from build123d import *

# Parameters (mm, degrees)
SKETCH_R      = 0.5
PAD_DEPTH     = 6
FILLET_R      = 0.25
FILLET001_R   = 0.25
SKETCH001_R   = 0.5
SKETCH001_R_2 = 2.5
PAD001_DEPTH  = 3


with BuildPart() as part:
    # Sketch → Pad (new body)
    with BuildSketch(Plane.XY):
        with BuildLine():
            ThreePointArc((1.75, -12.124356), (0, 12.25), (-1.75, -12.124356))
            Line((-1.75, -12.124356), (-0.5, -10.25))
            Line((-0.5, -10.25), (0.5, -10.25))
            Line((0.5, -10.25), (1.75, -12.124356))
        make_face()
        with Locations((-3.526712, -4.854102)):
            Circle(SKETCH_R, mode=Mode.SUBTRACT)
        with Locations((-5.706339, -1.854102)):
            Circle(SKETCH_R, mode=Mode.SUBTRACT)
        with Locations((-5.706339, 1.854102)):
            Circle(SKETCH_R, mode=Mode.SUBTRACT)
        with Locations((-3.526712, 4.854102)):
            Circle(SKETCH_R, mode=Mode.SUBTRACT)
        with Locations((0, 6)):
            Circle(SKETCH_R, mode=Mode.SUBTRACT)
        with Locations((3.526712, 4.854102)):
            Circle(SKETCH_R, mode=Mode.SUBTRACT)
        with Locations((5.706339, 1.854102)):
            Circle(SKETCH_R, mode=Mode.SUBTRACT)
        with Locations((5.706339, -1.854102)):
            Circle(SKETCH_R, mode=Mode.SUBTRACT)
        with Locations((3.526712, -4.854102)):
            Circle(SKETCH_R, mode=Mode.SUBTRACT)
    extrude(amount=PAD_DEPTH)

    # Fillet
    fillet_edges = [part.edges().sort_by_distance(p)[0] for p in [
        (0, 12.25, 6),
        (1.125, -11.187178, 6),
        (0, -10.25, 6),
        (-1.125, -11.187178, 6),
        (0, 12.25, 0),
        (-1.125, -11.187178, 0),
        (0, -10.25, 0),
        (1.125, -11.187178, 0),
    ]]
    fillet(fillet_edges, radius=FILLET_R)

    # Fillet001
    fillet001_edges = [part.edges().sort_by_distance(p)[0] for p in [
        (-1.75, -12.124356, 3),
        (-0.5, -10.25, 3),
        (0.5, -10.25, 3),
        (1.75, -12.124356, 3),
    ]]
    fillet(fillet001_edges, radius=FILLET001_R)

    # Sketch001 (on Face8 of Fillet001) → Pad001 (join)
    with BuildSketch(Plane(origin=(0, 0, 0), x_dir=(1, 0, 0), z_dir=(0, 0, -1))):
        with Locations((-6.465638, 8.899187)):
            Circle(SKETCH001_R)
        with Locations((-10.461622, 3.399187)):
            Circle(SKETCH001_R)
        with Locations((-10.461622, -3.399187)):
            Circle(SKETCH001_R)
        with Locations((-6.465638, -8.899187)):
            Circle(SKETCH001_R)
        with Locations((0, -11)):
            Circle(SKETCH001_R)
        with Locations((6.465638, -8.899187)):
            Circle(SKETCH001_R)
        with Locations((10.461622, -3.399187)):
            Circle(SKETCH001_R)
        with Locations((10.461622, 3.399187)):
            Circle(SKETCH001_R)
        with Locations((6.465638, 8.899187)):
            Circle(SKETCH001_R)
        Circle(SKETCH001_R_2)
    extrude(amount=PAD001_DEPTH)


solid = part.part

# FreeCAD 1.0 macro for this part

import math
import FreeCAD as App
import Part
import Sketcher

V = App.Vector
Q = App.Units.Quantity


def edges_at(feature, points):
    """Names of the edges that pass closest to the given points."""
    edges = feature.Shape.Edges
    near = lambda p: min(range(len(edges)), key=lambda i: edges[i].distToShape(Part.Vertex(*p))[0])
    return sorted({f"Edge{near(p) + 1}" for p in points})

doc = App.newDocument("Part")
body = doc.addObject("PartDesign::Body", "Body")

# Sketch on XY plane
sketch1 = doc.addObject("Sketcher::SketchObject", "Sketch")
body.addObject(sketch1)
sketch1.AttachmentSupport = (doc.XY_Plane, [""])
sketch1.MapMode = "FlatFace"
sketch1.addGeometry([
    Part.ArcOfCircle(Part.Circle(V(0, 0, 0), V(0, 0, 1), 12.3), math.radians(-82), math.radians(262)),  # 0
    Part.LineSegment(V(-1.8, -12.1, 0), V(-0.5, -10.2, 0)),  # 1
    Part.LineSegment(V(-0.5, -10.2, 0), V(0.5, -10.2, 0)),  # 2
    Part.LineSegment(V(0.5, -10.2, 0), V(1.8, -12.1, 0)),  # 3
    Part.Circle(V(-3.5, -4.9, 0), V(0, 0, 1), 0.5),  # 4
    Part.Circle(V(-5.7, -1.9, 0), V(0, 0, 1), 0.5),  # 5
    Part.Circle(V(3.5, -4.9, 0), V(0, 0, 1), 0.5),  # 6
    Part.Circle(V(5.7, -1.9, 0), V(0, 0, 1), 0.5),  # 7
    Part.Circle(V(-5.7, 1.9, 0), V(0, 0, 1), 0.5),  # 8
    Part.Circle(V(-3.5, 4.9, 0), V(0, 0, 1), 0.5),  # 9
    Part.Circle(V(5.7, 1.9, 0), V(0, 0, 1), 0.5),  # 10
    Part.Circle(V(0, 6, 0), V(0, 0, 1), 0.5),  # 11
    Part.Circle(V(3.5, 4.9, 0), V(0, 0, 1), 0.5),  # 12
], False)
sketch1.addConstraint([
    Sketcher.Constraint("Coincident", 0, 2, 1, 1),
    Sketcher.Constraint("Coincident", 1, 2, 2, 1),
    Sketcher.Constraint("Coincident", 2, 2, 3, 1),
    Sketcher.Constraint("Coincident", 3, 2, 0, 1),
    Sketcher.Constraint("Horizontal", 2),
    Sketcher.Constraint("Coincident", 0, 3, -1, 1),
    Sketcher.Constraint("Equal", 4, 5),
    Sketcher.Constraint("Equal", 5, 6),
    Sketcher.Constraint("Equal", 6, 7),
    Sketcher.Constraint("Equal", 7, 8),
    Sketcher.Constraint("Equal", 8, 9),
    Sketcher.Constraint("Equal", 9, 10),
    Sketcher.Constraint("Equal", 10, 11),
    Sketcher.Constraint("Equal", 11, 12),
    Sketcher.Constraint("Symmetric", 7, 3, 8, 3, -1, 1),
    Sketcher.Constraint("Symmetric", 6, 3, 9, 3, -1, 1),
    Sketcher.Constraint("Symmetric", 5, 3, 10, 3, -1, 1),
    Sketcher.Constraint("Symmetric", 4, 3, 12, 3, -1, 1),
    Sketcher.Constraint("Symmetric", 4, 3, 6, 3, -2),
    Sketcher.Constraint("Symmetric", 5, 3, 7, 3, -2),
    Sketcher.Constraint("PointOnObject", 11, 3, -2),
    Sketcher.Constraint("Horizontal", 0, 2, 3, 2),
    Sketcher.Constraint("Equal", 1, 3),
    Sketcher.Constraint("Diameter", 4, Q("1 mm")),
    Sketcher.Constraint("DistanceX", 2, 1, 2, 2, Q("1 mm")),
    Sketcher.Constraint("Radius", 0, Q("12.25 mm")),
    Sketcher.Constraint("DistanceY", -1, 1, 11, 3, Q("6 mm")),
    Sketcher.Constraint("DistanceY", 4, 3, 5, 3, Q("3 mm")),
    Sketcher.Constraint("DistanceX", 0, 2, 3, 2, Q("3.5 mm")),
    Sketcher.Constraint("DistanceY", 1, 2, -1, 1, Q("10.25 mm")),
    Sketcher.Constraint("DistanceY", 5, 3, -1, 1, Q("1.854102 mm")),
    Sketcher.Constraint("DistanceX", 4, 3, -1, 1, Q("3.526712 mm")),
    Sketcher.Constraint("DistanceX", 5, 3, -1, 1, Q("5.706339 mm")),
])
pad1 = doc.addObject("PartDesign::Pad", "Pad")
body.addObject(pad1)
pad1.Profile = sketch1
pad1.Length = 6
doc.recompute()

fillet = doc.addObject("PartDesign::Fillet", "Fillet")
body.addObject(fillet)
fillet.Base = (pad1, edges_at(pad1, [
    (0, 12.25, 6),
    (1.125, -11.187, 6),
    (0, -10.25, 6),
    (-1.125, -11.187, 6),
    (0, 12.25, 0),
    (-1.125, -11.187, 0),
    (0, -10.25, 0),
    (1.125, -11.187, 0),
]))
fillet.Radius = 0.25
doc.recompute()

fillet2 = doc.addObject("PartDesign::Fillet", "Fillet001")
body.addObject(fillet2)
fillet2.Base = (fillet, edges_at(fillet, [
    (-1.75, -12.124, 3),
    (-0.5, -10.25, 3),
    (0.5, -10.25, 3),
    (1.75, -12.124, 3),
]))
fillet2.Radius = 0.25

# Sketch on XY plane
sketch2 = doc.addObject("Sketcher::SketchObject", "Sketch001")
body.addObject(sketch2)
sketch2.AttachmentSupport = (doc.XY_Plane, [""])
sketch2.MapMode = "FlatFace"
sketch2.addGeometry([
    Part.Circle(V(-6.5, -8.9, 0), V(0, 0, 1), 0.5),  # 0
    Part.Circle(V(-10.5, -3.4, 0), V(0, 0, 1), 0.5),  # 1
    Part.Circle(V(-10.5, 3.4, 0), V(0, 0, 1), 0.5),  # 2
    Part.Circle(V(-6.5, 8.9, 0), V(0, 0, 1), 0.5),  # 3
    Part.Circle(V(0, 11, 0), V(0, 0, 1), 0.5),  # 4
    Part.Circle(V(6.5, 8.9, 0), V(0, 0, 1), 0.5),  # 5
    Part.Circle(V(10.5, 3.4, 0), V(0, 0, 1), 0.5),  # 6
    Part.Circle(V(10.5, -3.4, 0), V(0, 0, 1), 0.5),  # 7
    Part.Circle(V(6.5, -8.9, 0), V(0, 0, 1), 0.5),  # 8
    Part.Circle(V(0, 0, 0), V(0, 0, 1), 2.5),  # 9
], False)
sketch2.addConstraint([
    Sketcher.Constraint("Coincident", 9, 3, -1, 1),
    Sketcher.Constraint("Equal", 0, 1),
    Sketcher.Constraint("Equal", 1, 2),
    Sketcher.Constraint("Equal", 2, 3),
    Sketcher.Constraint("Equal", 3, 4),
    Sketcher.Constraint("Equal", 4, 5),
    Sketcher.Constraint("Equal", 5, 6),
    Sketcher.Constraint("Equal", 6, 7),
    Sketcher.Constraint("Equal", 7, 8),
    Sketcher.Constraint("Symmetric", 0, 3, 5, 3, -1, 1),
    Sketcher.Constraint("Symmetric", 1, 3, 6, 3, -1, 1),
    Sketcher.Constraint("Symmetric", 2, 3, 7, 3, -1, 1),
    Sketcher.Constraint("Symmetric", 3, 3, 8, 3, -1, 1),
    Sketcher.Constraint("Symmetric", 3, 3, 5, 3, -2),
    Sketcher.Constraint("Symmetric", 2, 3, 6, 3, -2),
    Sketcher.Constraint("PointOnObject", 4, 3, -2),
    Sketcher.Constraint("Diameter", 0, Q("1 mm")),
    Sketcher.Constraint("Diameter", 9, Q("5 mm")),
    Sketcher.Constraint("DistanceY", -1, 1, 4, 3, Q("11 mm")),
    Sketcher.Constraint("DistanceY", 0, 3, 1, 3, Q("5.5 mm")),
    Sketcher.Constraint("DistanceX", 0, 3, -1, 1, Q("6.465638 mm")),
    Sketcher.Constraint("DistanceX", 2, 3, 5, 3, Q("16.92726 mm")),
    Sketcher.Constraint("DistanceY", 0, 3, -1, 1, Q("8.899187 mm")),
])
pad2 = doc.addObject("PartDesign::Pad", "Pad001")
body.addObject(pad2)
pad2.Profile = sketch2
pad2.Length = 3
pad2.Reversed = True

doc.recompute()
